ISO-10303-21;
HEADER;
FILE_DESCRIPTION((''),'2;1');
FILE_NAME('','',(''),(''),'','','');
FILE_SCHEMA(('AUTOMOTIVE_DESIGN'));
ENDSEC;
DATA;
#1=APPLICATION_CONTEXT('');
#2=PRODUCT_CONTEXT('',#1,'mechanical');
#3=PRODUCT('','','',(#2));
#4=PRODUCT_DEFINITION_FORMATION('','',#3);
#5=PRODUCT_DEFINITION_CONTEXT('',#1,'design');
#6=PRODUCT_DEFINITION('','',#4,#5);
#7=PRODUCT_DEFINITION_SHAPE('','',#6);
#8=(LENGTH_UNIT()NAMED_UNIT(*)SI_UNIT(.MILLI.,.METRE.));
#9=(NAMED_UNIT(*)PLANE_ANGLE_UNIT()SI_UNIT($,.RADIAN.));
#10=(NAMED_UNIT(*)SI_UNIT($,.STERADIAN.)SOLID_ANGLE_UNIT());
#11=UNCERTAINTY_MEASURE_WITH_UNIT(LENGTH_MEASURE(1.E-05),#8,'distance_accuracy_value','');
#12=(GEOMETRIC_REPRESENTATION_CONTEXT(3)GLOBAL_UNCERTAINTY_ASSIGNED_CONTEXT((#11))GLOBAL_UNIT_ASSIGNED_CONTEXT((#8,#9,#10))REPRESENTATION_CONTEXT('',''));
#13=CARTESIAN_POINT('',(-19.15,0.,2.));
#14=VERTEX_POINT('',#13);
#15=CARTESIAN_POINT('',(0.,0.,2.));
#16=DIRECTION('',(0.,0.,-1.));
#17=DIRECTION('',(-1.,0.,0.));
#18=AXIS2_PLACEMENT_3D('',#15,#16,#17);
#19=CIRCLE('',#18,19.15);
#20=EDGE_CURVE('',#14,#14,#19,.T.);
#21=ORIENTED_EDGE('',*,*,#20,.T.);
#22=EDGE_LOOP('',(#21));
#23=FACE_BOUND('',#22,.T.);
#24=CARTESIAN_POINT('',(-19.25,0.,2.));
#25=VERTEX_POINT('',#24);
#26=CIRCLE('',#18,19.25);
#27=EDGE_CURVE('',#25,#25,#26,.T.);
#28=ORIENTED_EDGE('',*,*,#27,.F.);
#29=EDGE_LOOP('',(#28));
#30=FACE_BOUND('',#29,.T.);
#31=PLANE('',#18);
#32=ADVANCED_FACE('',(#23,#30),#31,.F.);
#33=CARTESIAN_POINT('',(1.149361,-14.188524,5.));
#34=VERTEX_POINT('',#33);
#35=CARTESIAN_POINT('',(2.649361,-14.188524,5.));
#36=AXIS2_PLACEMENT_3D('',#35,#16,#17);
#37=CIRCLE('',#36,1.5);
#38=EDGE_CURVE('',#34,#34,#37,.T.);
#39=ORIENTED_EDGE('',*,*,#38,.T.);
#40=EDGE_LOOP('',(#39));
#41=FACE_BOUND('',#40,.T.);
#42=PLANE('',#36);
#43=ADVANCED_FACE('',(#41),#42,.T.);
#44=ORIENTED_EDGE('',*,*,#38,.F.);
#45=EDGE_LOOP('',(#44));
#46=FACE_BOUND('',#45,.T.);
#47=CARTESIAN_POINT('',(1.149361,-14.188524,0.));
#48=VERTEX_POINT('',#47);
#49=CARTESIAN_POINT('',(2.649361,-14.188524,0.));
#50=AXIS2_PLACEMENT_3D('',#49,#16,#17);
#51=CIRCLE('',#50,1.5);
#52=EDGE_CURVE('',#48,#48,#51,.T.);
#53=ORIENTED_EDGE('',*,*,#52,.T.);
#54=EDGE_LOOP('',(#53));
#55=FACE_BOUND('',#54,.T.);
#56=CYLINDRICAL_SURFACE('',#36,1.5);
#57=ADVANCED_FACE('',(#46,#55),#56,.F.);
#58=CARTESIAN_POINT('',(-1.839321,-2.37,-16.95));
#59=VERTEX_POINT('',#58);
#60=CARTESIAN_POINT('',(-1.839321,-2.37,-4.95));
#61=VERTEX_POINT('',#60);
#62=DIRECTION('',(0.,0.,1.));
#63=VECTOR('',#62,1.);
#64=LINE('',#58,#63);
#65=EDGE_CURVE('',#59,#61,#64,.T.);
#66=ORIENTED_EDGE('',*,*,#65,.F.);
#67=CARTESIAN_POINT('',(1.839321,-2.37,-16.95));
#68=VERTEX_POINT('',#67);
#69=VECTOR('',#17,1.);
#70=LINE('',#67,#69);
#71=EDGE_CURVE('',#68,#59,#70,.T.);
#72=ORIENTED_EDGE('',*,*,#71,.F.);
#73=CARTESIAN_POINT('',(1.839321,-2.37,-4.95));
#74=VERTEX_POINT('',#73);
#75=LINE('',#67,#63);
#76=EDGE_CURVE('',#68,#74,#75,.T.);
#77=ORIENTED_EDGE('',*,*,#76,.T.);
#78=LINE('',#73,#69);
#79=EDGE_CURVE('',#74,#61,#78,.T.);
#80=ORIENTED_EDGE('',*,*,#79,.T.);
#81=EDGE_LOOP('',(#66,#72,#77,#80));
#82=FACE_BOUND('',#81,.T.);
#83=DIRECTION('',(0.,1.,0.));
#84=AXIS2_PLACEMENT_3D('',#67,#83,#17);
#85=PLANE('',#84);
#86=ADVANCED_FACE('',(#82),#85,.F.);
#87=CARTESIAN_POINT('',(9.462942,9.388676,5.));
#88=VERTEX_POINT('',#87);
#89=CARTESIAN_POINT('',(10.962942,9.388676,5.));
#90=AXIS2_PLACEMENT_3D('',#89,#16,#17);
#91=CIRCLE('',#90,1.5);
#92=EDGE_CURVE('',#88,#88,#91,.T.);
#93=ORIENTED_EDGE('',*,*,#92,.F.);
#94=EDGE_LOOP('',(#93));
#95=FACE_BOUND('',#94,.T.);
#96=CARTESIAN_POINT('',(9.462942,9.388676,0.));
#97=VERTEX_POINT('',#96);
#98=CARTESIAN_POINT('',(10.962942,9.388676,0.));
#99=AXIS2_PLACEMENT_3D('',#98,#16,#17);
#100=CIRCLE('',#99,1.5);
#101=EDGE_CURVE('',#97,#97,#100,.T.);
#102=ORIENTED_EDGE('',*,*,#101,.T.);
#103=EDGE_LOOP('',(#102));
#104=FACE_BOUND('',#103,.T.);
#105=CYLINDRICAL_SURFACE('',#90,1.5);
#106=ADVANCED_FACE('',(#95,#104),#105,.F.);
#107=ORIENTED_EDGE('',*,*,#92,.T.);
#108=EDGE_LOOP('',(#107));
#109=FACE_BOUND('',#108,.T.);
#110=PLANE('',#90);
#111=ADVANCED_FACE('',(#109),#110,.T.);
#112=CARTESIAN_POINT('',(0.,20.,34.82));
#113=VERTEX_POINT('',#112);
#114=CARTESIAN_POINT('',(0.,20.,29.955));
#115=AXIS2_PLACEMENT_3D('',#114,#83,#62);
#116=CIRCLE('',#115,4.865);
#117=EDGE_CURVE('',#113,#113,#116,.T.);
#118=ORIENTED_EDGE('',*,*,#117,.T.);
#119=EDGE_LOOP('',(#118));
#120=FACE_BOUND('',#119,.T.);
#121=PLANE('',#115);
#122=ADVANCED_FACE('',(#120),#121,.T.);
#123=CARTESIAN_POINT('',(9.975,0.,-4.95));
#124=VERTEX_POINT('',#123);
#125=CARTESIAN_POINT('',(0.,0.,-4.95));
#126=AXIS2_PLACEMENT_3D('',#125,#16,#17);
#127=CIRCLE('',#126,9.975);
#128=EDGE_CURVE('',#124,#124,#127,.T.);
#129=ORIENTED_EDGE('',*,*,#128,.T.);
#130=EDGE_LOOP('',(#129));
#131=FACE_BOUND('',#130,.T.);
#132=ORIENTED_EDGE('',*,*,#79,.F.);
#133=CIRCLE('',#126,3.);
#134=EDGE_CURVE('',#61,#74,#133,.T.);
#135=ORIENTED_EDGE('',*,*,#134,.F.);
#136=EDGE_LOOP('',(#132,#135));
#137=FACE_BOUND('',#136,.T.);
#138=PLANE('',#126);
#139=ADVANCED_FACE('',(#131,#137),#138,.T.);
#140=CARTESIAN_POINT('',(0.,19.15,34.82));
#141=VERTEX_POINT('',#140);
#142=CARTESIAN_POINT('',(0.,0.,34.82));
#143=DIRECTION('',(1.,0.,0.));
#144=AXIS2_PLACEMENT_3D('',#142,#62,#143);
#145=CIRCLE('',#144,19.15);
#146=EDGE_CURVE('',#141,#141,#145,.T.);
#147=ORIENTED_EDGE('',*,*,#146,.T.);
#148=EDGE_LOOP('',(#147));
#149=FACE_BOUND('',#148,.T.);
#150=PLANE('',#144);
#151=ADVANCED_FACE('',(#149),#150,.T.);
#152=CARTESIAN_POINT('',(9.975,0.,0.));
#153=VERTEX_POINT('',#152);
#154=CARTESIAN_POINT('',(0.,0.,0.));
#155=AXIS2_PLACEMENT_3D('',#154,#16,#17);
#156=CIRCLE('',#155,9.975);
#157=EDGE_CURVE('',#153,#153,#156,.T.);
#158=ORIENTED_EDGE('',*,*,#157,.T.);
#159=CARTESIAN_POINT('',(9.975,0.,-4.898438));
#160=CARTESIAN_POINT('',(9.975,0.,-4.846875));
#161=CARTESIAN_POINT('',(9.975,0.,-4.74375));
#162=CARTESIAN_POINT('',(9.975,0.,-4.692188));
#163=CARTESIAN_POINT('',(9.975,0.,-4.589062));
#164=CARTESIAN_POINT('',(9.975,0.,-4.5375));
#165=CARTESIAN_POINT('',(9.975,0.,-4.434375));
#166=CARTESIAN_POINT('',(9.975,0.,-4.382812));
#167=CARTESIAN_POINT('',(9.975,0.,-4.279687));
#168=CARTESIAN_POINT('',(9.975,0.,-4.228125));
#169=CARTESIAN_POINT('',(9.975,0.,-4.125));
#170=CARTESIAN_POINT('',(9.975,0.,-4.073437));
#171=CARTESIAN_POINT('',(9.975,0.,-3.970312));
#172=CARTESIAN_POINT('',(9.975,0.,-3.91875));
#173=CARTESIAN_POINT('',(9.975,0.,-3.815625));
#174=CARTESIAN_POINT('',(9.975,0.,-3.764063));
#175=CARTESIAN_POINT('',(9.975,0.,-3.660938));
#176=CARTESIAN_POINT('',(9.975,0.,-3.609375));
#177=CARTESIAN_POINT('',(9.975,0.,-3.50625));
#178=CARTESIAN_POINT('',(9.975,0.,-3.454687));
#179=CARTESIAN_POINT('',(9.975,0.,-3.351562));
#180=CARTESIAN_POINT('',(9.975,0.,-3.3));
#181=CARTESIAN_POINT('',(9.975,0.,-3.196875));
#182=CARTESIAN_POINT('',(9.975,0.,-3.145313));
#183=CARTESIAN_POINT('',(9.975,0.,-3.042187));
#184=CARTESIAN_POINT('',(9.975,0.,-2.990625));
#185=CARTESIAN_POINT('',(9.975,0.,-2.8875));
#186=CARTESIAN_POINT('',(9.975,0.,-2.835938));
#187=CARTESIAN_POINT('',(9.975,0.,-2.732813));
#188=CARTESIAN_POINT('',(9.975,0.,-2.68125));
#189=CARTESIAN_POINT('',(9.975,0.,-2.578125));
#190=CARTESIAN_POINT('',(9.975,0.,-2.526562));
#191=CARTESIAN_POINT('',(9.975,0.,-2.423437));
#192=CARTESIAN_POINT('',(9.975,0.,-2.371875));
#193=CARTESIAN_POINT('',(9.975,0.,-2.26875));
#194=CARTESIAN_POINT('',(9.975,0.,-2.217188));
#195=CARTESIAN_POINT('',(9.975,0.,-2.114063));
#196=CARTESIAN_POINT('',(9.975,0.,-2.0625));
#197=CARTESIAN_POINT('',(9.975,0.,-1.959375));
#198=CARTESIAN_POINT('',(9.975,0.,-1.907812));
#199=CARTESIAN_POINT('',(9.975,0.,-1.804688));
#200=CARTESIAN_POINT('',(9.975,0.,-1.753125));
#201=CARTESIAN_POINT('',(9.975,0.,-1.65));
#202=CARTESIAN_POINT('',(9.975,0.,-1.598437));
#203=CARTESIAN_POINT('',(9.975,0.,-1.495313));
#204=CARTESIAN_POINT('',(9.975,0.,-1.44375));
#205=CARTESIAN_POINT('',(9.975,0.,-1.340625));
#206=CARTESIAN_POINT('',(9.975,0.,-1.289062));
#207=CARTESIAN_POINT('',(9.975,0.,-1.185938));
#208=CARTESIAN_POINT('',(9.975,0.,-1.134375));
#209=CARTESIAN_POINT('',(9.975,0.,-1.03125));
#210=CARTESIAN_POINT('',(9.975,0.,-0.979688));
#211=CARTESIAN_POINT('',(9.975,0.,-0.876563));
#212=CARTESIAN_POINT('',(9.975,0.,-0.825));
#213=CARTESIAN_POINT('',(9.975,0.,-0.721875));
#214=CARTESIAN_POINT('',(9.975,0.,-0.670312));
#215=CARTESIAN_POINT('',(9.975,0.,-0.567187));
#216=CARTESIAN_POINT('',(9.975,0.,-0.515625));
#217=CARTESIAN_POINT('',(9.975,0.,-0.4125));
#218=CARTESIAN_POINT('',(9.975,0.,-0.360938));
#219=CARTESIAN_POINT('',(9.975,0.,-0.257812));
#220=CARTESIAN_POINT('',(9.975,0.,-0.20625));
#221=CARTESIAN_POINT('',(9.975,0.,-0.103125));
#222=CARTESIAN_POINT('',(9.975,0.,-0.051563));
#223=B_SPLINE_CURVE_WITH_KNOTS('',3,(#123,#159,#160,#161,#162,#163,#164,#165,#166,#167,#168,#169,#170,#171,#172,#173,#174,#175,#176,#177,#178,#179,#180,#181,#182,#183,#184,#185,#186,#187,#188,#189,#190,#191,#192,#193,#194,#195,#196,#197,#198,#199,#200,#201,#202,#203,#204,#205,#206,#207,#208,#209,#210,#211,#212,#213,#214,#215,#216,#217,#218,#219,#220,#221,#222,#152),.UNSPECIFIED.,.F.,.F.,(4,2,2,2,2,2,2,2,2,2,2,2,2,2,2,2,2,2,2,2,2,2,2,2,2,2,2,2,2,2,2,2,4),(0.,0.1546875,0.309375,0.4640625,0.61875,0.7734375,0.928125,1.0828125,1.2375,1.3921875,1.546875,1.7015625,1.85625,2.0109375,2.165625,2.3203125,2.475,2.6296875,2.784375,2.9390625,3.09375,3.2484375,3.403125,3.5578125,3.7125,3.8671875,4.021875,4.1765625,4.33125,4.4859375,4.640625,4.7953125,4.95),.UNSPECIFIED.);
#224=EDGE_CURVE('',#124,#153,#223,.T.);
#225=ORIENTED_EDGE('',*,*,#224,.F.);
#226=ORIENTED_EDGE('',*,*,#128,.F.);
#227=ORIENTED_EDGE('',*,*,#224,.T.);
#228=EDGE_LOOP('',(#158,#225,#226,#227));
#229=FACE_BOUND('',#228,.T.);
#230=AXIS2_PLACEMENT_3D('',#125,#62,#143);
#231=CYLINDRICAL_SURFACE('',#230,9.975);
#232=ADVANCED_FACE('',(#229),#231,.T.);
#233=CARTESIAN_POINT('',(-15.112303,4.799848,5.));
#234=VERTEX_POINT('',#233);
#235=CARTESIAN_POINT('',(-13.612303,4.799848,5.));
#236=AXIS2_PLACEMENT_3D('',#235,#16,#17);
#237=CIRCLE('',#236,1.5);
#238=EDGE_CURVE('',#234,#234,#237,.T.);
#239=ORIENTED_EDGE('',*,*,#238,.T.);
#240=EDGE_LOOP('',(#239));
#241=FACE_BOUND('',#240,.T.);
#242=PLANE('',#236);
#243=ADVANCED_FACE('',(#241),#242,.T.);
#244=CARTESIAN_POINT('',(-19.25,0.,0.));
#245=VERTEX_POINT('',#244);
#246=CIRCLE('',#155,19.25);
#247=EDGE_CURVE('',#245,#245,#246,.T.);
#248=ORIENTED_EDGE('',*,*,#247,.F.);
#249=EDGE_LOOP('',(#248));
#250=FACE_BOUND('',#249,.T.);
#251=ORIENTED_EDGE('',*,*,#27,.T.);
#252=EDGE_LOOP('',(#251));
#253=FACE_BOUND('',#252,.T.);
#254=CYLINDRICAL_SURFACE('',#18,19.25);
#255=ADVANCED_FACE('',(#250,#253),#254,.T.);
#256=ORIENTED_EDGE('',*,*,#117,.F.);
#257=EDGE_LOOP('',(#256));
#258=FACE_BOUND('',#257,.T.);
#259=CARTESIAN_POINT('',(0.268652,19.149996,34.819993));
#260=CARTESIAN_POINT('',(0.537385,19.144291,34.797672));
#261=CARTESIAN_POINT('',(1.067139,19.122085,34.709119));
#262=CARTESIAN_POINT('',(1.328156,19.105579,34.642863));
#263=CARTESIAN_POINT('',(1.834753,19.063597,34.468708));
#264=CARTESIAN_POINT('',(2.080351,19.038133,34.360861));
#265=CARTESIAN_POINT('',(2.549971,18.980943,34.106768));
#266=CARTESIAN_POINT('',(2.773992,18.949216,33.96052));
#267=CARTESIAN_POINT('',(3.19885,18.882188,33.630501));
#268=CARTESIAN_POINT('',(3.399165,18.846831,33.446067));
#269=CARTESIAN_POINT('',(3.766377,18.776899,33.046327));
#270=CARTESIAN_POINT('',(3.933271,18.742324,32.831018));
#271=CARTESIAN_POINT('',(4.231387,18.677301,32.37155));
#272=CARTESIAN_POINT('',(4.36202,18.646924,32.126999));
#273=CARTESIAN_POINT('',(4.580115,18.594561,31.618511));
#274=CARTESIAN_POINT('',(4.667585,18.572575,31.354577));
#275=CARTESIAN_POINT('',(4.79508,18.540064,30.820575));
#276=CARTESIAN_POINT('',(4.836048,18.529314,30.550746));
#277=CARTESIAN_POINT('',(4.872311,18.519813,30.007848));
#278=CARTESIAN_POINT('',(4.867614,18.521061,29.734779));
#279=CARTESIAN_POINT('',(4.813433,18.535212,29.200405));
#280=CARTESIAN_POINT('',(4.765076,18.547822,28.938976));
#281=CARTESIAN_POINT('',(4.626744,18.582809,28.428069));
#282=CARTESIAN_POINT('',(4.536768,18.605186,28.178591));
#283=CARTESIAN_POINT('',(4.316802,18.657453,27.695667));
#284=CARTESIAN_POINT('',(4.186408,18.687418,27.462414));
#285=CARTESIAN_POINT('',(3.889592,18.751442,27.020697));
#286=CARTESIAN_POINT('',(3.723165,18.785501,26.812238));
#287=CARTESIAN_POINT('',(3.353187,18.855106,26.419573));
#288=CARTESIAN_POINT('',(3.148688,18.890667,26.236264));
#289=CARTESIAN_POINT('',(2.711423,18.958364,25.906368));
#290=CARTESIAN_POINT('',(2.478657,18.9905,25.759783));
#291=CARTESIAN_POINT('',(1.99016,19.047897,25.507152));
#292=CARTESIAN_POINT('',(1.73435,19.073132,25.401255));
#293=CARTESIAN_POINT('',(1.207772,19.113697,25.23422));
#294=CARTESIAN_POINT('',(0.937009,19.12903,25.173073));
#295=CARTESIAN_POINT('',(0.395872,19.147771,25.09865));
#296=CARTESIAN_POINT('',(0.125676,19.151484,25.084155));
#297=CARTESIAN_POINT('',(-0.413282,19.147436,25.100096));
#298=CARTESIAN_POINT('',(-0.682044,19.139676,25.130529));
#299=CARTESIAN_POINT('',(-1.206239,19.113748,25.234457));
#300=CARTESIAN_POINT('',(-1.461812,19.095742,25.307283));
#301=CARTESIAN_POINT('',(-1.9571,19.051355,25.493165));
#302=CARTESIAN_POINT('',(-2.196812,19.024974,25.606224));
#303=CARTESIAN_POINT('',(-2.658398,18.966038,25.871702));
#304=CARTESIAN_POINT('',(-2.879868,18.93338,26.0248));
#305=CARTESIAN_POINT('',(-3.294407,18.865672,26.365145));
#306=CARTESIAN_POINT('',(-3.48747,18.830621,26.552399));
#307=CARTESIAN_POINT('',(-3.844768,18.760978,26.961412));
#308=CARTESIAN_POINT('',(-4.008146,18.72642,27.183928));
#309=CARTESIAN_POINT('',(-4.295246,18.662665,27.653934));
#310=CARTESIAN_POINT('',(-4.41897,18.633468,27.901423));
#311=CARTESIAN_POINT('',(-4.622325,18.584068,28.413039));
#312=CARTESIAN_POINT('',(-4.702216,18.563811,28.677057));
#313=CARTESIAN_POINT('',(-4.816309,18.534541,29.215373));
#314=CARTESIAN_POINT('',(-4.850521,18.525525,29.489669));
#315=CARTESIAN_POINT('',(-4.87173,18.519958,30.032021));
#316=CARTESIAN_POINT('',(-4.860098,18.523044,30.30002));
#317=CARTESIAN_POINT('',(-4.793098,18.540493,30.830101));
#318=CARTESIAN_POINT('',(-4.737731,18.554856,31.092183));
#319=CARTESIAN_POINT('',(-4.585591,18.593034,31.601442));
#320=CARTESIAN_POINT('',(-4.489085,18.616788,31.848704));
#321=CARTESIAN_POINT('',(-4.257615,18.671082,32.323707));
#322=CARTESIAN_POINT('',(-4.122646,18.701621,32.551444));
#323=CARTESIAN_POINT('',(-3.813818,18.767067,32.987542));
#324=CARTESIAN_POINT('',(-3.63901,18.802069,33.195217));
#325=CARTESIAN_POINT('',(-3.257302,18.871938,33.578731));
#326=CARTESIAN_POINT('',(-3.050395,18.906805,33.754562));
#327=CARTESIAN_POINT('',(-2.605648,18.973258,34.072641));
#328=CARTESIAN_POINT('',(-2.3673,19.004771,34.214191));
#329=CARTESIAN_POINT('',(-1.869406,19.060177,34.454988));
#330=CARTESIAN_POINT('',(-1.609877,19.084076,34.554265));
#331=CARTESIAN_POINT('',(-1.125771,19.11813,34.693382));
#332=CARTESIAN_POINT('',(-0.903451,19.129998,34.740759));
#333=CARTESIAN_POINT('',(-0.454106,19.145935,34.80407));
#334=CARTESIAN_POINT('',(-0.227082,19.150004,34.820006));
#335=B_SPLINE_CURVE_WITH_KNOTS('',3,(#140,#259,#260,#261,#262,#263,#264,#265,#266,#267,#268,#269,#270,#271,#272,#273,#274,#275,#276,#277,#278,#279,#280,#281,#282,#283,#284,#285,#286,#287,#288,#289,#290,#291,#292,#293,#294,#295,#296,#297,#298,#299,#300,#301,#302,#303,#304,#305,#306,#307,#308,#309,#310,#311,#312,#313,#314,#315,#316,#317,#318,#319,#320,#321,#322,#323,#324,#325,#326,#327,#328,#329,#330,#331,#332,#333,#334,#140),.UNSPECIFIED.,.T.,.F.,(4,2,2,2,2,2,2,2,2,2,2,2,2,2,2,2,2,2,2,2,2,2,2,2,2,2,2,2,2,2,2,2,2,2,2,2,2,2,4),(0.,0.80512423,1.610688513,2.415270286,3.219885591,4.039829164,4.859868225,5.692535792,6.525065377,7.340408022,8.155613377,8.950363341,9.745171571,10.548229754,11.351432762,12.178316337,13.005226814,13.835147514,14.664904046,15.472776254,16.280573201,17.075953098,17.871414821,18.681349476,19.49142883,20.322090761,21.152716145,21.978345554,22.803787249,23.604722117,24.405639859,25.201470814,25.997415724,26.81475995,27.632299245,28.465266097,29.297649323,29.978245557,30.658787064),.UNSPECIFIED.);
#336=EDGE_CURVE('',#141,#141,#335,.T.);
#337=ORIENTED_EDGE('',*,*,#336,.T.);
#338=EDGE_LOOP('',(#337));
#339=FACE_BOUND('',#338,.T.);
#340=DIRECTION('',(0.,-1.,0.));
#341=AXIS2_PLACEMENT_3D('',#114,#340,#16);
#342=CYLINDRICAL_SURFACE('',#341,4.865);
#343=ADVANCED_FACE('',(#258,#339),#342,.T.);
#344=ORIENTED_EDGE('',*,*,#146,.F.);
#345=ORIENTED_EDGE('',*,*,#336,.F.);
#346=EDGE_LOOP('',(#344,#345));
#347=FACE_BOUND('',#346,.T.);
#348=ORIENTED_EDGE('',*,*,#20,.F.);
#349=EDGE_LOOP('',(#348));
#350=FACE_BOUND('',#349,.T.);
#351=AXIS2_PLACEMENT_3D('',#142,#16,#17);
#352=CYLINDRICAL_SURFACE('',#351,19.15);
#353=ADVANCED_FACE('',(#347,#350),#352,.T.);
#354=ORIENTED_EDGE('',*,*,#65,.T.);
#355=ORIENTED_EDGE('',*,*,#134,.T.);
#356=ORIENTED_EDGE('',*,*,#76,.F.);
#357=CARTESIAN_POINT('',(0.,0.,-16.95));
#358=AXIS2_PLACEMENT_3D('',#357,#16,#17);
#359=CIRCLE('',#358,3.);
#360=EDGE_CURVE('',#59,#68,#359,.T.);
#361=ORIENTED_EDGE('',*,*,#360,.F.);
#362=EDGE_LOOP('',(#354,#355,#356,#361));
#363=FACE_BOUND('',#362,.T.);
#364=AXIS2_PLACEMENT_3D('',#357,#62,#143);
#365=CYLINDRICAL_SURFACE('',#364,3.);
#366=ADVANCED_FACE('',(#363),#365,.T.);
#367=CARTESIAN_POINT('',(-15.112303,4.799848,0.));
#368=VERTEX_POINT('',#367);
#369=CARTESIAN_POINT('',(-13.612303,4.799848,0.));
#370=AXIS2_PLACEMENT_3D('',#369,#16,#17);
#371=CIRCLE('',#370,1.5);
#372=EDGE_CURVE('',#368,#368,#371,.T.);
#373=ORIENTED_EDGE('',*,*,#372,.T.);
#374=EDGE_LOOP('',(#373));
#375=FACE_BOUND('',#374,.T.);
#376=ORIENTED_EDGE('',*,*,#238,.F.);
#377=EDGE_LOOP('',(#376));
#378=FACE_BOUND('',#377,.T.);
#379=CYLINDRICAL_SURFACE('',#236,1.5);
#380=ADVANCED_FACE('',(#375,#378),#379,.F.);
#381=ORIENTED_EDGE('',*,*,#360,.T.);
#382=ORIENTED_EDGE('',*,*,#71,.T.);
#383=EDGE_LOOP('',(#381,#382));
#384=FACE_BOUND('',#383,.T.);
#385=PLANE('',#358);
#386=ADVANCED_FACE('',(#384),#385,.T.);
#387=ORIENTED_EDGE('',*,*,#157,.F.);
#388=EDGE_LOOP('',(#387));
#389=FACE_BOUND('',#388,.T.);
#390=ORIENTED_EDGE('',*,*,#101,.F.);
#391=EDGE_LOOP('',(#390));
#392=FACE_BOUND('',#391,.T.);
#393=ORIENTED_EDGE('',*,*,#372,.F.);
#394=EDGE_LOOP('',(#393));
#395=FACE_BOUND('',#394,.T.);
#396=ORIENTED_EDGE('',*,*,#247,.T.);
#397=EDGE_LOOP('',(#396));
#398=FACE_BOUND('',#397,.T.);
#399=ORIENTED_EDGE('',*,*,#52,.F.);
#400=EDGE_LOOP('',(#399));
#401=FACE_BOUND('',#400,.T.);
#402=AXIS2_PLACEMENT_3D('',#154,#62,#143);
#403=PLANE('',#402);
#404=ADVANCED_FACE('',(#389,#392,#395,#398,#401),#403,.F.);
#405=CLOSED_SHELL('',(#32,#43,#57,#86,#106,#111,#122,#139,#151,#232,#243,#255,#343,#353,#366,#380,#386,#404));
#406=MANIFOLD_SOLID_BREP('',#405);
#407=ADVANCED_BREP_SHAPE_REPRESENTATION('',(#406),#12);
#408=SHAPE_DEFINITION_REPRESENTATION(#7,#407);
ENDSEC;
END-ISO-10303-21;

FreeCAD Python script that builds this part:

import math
import FreeCAD as App
import Part
import Sketcher

doc = App.newDocument("Part")
body = doc.addObject("PartDesign::Body", "Body")

# Sketch on XY plane
sketch1 = body.newObject("Sketcher::SketchObject", "Sketch")
sketch1.AttachmentSupport = (doc.getObject("XY_Plane"), [""])
sketch1.MapMode = "FlatFace"
sketch1.addGeometry(Part.Circle(App.Vector(0, 0, 0), App.Vector(0, 0, 1), 19), False)
sketch1.addConstraint(Sketcher.Constraint("Coincident", 0, 3, -1, 1))
sketch1.addConstraint(Sketcher.Constraint("Diameter", 0, 38.3))
pad1 = body.newObject("PartDesign::Pad", "Pad")
pad1.Profile = sketch1
pad1.Length = 34.82

# Sketch on XY plane
sketch2 = body.newObject("Sketcher::SketchObject", "Sketch001")
sketch2.AttachmentSupport = (doc.getObject("XY_Plane"), [""])
sketch2.MapMode = "FlatFace"
sketch2.addGeometry(Part.Circle(App.Vector(0, 0, 0), App.Vector(0, 0, 1), 10), False)
sketch2.addConstraint(Sketcher.Constraint("Coincident", 0, 3, -1, 1))
sketch2.addConstraint(Sketcher.Constraint("Diameter", 0, 19.95))
pad2 = body.newObject("PartDesign::Pad", "Pad001")
pad2.Profile = sketch2
pad2.Length = 4.95
pad2.Reversed = True

# Sketch on XY plane
sketch3 = body.newObject("Sketcher::SketchObject", "Sketch002")
sketch3.AttachmentSupport = (doc.getObject("XY_Plane"), [""])
sketch3.MapMode = "FlatFace"
sketch3.AttachmentOffset = App.Placement(App.Vector(0, 0, -4.95), App.Rotation())
sketch3.addGeometry(Part.LineSegment(App.Vector(1.8, -2.4, 0), App.Vector(-1.8, -2.4, 0)), False)
sketch3.addGeometry(Part.ArcOfCircle(Part.Circle(App.Vector(0, 0, 0), App.Vector(0, 0, 1), 3), math.radians(-52), math.radians(232)), False)
sketch3.addConstraint(Sketcher.Constraint("Coincident", 0, 1, 1, 1))
sketch3.addConstraint(Sketcher.Constraint("Coincident", 1, 2, 0, 2))
sketch3.addConstraint(Sketcher.Constraint("Horizontal", 0))
sketch3.addConstraint(Sketcher.Constraint("Coincident", 1, 3, -1, 1))
sketch3.addConstraint(Sketcher.Constraint("Radius", 1, 3.0))
sketch3.addConstraint(Sketcher.Constraint("DistanceY", 0, 1, -1, 1, 2.37))
pad3 = body.newObject("PartDesign::Pad", "Pad002")
pad3.Profile = sketch3
pad3.Length = 12
pad3.Reversed = True

# Sketch on XZ plane
sketch4 = body.newObject("Sketcher::SketchObject", "Sketch003")
sketch4.AttachmentSupport = (doc.getObject("XZ_Plane"), [""])
sketch4.MapMode = "FlatFace"
sketch4.addGeometry(Part.Circle(App.Vector(0, 30, 0), App.Vector(0, 0, 1), 4.9), False)
sketch4.addConstraint(Sketcher.Constraint("PointOnObject", 0, 3, -2))
sketch4.addConstraint(Sketcher.Constraint("Diameter", 0, 9.73))
sketch4.addConstraint(Sketcher.Constraint("DistanceY", -1, 1, 0, 3, 29.955))
pad4 = body.newObject("PartDesign::Pad", "Pad003")
pad4.Profile = sketch4
pad4.Length = 20
pad4.Reversed = True

# Sketch on XY plane
sketch5 = body.newObject("Sketcher::SketchObject", "Sketch004")
sketch5.AttachmentSupport = (doc.getObject("XY_Plane"), [""])
sketch5.MapMode = "FlatFace"
sketch5.addGeometry(Part.Circle(App.Vector(0, 0, 0), App.Vector(0, 0, 1), 19), False)
sketch5.addConstraint(Sketcher.Constraint("Coincident", 0, 3, -1, 1))
sketch5.addConstraint(Sketcher.Constraint("Diameter", 0, 38.5))
pad5 = body.newObject("PartDesign::Pad", "Pad004")
pad5.Profile = sketch5
pad5.Length = 2

# Sketch on XY plane
sketch6 = body.newObject("Sketcher::SketchObject", "Sketch005")
sketch6.AttachmentSupport = (doc.getObject("XY_Plane"), [""])
sketch6.MapMode = "FlatFace"
sketch6.addGeometry(Part.Circle(App.Vector(11, 9.4, 0), App.Vector(0, 0, 1), 1.5), False)
sketch6.addGeometry(Part.Circle(App.Vector(-13.6, 4.8, 0), App.Vector(0, 0, 1), 1.5), False)
sketch6.addGeometry(Part.Circle(App.Vector(2.6, -14.2, 0), App.Vector(0, 0, 1), 1.5), False)
sketch6.addConstraint(Sketcher.Constraint("Equal", 0, 1))
sketch6.addConstraint(Sketcher.Constraint("Equal", 1, 2))
sketch6.addConstraint(Sketcher.Constraint("Diameter", 0, 3.0))
sketch6.addConstraint(Sketcher.Constraint("DistanceY", 2, 3, 0, 3, 23.5772))
sketch6.addConstraint(Sketcher.Constraint("DistanceY", -1, 1, 1, 3, 4.799848))
sketch6.addConstraint(Sketcher.Constraint("DistanceX", -1, 1, 2, 3, 2.649361))
sketch6.addConstraint(Sketcher.Constraint("DistanceX", 2, 3, 0, 3, 8.313581))
sketch6.addConstraint(Sketcher.Constraint("DistanceY", -1, 1, 0, 3, 9.388676))
sketch6.addConstraint(Sketcher.Constraint("DistanceX", 1, 3, -1, 1, 13.612303))
pocket1 = body.newObject("PartDesign::Pocket", "Pocket")
pocket1.Profile = sketch6
pocket1.Length = 5
pocket1.Reversed = True

doc.recompute()
